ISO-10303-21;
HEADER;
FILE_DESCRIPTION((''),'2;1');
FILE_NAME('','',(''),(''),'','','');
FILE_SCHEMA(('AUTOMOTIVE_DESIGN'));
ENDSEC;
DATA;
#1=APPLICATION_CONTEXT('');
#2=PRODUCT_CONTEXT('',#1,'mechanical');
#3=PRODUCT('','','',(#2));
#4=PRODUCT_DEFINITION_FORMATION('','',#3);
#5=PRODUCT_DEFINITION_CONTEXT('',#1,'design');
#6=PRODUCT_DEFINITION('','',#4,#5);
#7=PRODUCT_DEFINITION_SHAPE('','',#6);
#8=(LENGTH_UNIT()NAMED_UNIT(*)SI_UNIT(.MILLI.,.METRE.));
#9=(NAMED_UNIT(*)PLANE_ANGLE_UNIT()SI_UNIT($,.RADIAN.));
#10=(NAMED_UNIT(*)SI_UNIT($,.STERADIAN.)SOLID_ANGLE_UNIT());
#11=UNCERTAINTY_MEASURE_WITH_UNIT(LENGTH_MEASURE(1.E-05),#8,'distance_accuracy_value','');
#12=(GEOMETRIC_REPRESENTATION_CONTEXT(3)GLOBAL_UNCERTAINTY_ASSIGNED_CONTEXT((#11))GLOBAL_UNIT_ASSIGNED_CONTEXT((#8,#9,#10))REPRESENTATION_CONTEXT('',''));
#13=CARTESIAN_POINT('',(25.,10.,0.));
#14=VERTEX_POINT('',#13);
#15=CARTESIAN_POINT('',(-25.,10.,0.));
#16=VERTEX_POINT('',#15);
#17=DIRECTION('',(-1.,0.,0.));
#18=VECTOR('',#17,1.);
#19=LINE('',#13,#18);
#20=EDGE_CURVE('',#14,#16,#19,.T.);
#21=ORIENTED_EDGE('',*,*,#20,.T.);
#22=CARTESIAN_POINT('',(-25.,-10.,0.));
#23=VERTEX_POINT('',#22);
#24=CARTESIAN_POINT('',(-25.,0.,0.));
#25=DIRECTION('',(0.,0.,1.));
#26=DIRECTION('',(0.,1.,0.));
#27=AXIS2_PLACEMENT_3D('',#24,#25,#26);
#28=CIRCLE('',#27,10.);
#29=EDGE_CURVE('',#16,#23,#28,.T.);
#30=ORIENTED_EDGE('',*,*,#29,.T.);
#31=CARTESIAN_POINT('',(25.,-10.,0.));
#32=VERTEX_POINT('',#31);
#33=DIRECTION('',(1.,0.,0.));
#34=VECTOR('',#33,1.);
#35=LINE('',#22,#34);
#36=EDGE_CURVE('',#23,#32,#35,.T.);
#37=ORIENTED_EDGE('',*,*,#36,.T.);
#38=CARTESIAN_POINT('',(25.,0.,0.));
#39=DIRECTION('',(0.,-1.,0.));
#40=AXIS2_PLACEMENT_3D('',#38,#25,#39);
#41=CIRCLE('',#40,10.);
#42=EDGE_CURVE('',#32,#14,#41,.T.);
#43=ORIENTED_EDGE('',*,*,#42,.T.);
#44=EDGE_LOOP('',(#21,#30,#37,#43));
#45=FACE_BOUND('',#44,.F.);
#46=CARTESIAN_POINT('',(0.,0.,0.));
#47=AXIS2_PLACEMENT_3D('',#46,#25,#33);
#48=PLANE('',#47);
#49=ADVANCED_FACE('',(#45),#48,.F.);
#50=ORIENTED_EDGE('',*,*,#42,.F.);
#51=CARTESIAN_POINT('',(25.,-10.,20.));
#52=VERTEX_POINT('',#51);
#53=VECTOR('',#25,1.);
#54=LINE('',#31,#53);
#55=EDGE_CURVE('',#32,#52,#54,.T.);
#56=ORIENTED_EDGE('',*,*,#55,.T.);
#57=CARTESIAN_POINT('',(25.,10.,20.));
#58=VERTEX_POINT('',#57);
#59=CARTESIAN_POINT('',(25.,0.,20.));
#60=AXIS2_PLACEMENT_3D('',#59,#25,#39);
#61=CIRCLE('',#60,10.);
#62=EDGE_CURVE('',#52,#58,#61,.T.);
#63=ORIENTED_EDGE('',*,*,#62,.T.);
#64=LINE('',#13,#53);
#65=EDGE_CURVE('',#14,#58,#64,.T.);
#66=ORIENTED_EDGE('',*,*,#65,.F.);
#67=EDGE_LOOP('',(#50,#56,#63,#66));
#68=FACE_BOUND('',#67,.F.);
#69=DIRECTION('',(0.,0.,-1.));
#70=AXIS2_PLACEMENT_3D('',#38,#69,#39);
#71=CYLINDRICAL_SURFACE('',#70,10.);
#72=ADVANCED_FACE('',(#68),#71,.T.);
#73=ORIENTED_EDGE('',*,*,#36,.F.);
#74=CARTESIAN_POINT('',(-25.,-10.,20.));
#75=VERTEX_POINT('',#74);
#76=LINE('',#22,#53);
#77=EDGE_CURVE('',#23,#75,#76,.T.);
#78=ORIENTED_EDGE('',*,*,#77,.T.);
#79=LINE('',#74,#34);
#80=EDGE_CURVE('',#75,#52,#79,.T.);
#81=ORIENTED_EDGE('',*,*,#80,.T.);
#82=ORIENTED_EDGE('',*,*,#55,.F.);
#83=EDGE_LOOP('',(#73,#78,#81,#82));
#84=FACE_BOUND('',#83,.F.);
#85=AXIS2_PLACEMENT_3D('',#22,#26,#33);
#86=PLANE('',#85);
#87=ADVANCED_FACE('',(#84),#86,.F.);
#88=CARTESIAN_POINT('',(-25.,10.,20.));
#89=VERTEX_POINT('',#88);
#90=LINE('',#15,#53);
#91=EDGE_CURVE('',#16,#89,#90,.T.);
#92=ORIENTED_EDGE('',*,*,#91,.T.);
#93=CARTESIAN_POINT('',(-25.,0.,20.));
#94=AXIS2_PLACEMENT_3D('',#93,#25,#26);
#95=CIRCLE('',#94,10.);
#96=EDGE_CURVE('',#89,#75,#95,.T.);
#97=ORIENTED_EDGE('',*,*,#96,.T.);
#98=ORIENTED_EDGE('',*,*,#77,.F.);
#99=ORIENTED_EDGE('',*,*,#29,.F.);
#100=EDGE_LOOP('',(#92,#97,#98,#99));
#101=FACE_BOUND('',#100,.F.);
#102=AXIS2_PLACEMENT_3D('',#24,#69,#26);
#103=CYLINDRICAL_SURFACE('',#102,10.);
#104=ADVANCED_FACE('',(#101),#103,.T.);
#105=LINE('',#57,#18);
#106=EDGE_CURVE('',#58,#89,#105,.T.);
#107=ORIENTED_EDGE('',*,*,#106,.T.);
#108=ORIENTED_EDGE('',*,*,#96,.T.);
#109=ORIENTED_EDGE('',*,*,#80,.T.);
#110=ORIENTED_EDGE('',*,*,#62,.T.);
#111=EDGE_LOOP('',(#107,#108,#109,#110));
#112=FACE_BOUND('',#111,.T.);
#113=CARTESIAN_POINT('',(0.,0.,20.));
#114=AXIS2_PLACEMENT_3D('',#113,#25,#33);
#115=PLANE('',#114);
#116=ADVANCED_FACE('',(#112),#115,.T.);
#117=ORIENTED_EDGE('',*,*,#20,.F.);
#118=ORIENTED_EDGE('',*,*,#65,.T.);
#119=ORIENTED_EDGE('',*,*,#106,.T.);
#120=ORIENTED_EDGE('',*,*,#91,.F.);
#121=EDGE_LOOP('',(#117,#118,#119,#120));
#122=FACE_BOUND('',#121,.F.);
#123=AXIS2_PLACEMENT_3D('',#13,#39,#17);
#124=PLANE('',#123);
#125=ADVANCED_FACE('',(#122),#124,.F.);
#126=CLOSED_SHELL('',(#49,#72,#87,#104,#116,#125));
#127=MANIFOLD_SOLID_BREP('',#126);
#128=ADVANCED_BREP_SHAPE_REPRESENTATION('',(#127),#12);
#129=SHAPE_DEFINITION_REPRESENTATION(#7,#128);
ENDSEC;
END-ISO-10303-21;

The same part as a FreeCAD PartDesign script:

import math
import FreeCAD as App
import Part
import Sketcher

V = App.Vector
Q = App.Units.Quantity

doc = App.newDocument("Part")
body = doc.addObject("PartDesign::Body", "Body")

# Sketch on XY plane
sketch1 = body.newObject("Sketcher::SketchObject", "Sketch")
sketch1.AttachmentSupport = (doc.getObject("XY_Plane"), [""])
sketch1.MapMode = "FlatFace"
sketch1.addGeometry([
    Part.ArcOfCircle(Part.Circle(V(-25, 0, 0), V(0, 0, 1), 10), math.radians(90), math.radians(270)),
    Part.LineSegment(V(-25, -10, 0), V(25, -10, 0)),
    Part.ArcOfCircle(Part.Circle(V(25, 0, 0), V(0, 0, 1), 10), math.radians(-90), math.radians(90)),
    Part.LineSegment(V(25, 10, 0), V(-25, 10, 0)),
], False)
sketch1.addConstraint([
    Sketcher.Constraint("Tangent", 0, 2, 1, 1),
    Sketcher.Constraint("Tangent", 1, 2, 2, 1),
    Sketcher.Constraint("Tangent", 2, 2, 3, 1),
    Sketcher.Constraint("Tangent", 3, 2, 0, 1),
    Sketcher.Constraint("Horizontal", 1),
    Sketcher.Constraint("Horizontal", 3),
    Sketcher.Constraint("Symmetric", 0, 3, 2, 3, -1, 1),
    Sketcher.Constraint("Radius", 0, Q("10 mm")),
    Sketcher.Constraint("DistanceX", 1, 1, 1, 2, Q("50 mm")),
])
pad1 = body.newObject("PartDesign::Pad", "Pad")
pad1.Profile = sketch1
pad1.Length = 20

doc.recompute()
